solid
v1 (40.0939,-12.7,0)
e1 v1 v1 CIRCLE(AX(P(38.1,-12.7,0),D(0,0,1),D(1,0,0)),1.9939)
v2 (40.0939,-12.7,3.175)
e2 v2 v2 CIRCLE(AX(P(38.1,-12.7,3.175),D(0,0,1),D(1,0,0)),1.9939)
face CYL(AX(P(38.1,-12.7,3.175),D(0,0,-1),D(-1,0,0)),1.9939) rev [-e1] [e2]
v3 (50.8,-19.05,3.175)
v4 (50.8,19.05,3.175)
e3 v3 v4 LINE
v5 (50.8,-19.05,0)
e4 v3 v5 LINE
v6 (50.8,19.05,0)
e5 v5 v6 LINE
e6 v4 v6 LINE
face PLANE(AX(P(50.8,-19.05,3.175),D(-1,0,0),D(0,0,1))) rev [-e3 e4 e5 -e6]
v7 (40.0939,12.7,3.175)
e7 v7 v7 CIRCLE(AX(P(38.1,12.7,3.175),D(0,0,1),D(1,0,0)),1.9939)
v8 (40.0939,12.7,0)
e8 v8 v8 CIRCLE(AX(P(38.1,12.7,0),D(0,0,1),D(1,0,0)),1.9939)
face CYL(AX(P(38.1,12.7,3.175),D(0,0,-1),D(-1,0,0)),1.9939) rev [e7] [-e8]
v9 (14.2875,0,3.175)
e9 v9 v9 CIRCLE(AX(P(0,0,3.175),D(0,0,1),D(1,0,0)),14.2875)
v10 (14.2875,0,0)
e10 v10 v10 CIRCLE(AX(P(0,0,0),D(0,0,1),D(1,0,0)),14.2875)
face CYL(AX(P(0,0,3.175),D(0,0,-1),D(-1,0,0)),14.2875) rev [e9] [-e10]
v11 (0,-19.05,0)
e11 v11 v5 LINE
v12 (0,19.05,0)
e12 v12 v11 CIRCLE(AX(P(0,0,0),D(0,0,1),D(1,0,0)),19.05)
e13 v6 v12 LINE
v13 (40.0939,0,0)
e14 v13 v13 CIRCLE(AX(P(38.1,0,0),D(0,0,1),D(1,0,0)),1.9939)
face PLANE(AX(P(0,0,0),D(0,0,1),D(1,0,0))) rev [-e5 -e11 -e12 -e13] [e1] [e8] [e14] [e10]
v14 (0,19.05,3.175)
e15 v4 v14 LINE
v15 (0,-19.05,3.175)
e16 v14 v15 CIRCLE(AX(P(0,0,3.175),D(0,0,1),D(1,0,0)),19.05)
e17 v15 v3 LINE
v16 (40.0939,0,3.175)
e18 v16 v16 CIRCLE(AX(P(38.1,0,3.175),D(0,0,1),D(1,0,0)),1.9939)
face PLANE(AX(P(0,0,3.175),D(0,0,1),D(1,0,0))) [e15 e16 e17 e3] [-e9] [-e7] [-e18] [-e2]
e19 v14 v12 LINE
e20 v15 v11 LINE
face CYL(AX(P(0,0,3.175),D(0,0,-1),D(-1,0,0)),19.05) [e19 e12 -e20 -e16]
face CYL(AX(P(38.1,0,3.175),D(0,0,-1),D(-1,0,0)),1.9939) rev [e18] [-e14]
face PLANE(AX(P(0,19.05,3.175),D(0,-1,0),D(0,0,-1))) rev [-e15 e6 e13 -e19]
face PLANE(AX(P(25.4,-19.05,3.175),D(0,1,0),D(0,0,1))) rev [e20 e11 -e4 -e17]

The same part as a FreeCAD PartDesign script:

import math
import FreeCAD as App
import Part
import Sketcher

V = App.Vector
Q = App.Units.Quantity

doc = App.newDocument("Part")
body = doc.addObject("PartDesign::Body", "Body")

sketch1 = body.newObject("Sketcher::SketchObject", "Sketch")
sketch1.AttachmentSupport = (doc.getObject("XY_Plane"), [""])
sketch1.MapMode = "FlatFace"
sketch1.addGeometry([
    Part.LineSegment(V(50.8, 19.05, 0), V(0, 19.05, 0)),
    Part.ArcOfCircle(Part.Circle(V(0, 0, 0), V(0, 0, 1), 19.05), math.radians(90), math.radians(270)),
    Part.LineSegment(V(0, -19.05, 0), V(50.8, -19.05, 0)),
    Part.LineSegment(V(50.8, -19.05, 0), V(50.8, 19.05, 0)),
    Part.Circle(V(38.1, -12.7, 0), V(0, 0, 1), 1.9939),
    Part.Circle(V(38.1, 0, 0), V(0, 0, 1), 1.9939),
    Part.Circle(V(38.1, 12.7, 0), V(0, 0, 1), 1.9939),
    Part.Circle(V(0, 0, 0), V(0, 0, 1), 14.2875),
], False)
sketch1.addConstraint([
    Sketcher.Constraint("Tangent", 0, 2, 1, 1),
    Sketcher.Constraint("Tangent", 1, 2, 2, 1),
    Sketcher.Constraint("Coincident", 2, 2, 3, 1),
    Sketcher.Constraint("Coincident", 3, 2, 0, 1),
    Sketcher.Constraint("Horizontal", 0),
    Sketcher.Constraint("Horizontal", 2),
    Sketcher.Constraint("Vertical", 3),
    Sketcher.Constraint("Coincident", 1, 3, -1, 1),
    Sketcher.Constraint("Coincident", 7, 3, -1, 1),
    Sketcher.Constraint("Equal", 4, 5),
    Sketcher.Constraint("Equal", 5, 6),
    Sketcher.Constraint("Symmetric", 4, 3, 6, 3, -1),
    Sketcher.Constraint("PointOnObject", 5, 3, -1),
    Sketcher.Constraint("Vertical", 4, 3, 5, 3),
    Sketcher.Constraint("DistanceX", 0, 2, 0, 1, Q("2 in")),
    Sketcher.Constraint("Radius", 1, Q("0.75 in")),
    Sketcher.Constraint("Diameter", 4, Q("0.157 in")),
    Sketcher.Constraint("Diameter", 7, Q("1.125 in")),
    Sketcher.Constraint("DistanceY", 4, 3, 6, 3, Q("1 in")),
    Sketcher.Constraint("DistanceX", -1, 1, 4, 3, Q("1.5 in")),
])
pad1 = body.newObject("PartDesign::Pad", "Pad")
pad1.Profile = sketch1
pad1.Length = Q("0.125 in")

doc.recompute()
